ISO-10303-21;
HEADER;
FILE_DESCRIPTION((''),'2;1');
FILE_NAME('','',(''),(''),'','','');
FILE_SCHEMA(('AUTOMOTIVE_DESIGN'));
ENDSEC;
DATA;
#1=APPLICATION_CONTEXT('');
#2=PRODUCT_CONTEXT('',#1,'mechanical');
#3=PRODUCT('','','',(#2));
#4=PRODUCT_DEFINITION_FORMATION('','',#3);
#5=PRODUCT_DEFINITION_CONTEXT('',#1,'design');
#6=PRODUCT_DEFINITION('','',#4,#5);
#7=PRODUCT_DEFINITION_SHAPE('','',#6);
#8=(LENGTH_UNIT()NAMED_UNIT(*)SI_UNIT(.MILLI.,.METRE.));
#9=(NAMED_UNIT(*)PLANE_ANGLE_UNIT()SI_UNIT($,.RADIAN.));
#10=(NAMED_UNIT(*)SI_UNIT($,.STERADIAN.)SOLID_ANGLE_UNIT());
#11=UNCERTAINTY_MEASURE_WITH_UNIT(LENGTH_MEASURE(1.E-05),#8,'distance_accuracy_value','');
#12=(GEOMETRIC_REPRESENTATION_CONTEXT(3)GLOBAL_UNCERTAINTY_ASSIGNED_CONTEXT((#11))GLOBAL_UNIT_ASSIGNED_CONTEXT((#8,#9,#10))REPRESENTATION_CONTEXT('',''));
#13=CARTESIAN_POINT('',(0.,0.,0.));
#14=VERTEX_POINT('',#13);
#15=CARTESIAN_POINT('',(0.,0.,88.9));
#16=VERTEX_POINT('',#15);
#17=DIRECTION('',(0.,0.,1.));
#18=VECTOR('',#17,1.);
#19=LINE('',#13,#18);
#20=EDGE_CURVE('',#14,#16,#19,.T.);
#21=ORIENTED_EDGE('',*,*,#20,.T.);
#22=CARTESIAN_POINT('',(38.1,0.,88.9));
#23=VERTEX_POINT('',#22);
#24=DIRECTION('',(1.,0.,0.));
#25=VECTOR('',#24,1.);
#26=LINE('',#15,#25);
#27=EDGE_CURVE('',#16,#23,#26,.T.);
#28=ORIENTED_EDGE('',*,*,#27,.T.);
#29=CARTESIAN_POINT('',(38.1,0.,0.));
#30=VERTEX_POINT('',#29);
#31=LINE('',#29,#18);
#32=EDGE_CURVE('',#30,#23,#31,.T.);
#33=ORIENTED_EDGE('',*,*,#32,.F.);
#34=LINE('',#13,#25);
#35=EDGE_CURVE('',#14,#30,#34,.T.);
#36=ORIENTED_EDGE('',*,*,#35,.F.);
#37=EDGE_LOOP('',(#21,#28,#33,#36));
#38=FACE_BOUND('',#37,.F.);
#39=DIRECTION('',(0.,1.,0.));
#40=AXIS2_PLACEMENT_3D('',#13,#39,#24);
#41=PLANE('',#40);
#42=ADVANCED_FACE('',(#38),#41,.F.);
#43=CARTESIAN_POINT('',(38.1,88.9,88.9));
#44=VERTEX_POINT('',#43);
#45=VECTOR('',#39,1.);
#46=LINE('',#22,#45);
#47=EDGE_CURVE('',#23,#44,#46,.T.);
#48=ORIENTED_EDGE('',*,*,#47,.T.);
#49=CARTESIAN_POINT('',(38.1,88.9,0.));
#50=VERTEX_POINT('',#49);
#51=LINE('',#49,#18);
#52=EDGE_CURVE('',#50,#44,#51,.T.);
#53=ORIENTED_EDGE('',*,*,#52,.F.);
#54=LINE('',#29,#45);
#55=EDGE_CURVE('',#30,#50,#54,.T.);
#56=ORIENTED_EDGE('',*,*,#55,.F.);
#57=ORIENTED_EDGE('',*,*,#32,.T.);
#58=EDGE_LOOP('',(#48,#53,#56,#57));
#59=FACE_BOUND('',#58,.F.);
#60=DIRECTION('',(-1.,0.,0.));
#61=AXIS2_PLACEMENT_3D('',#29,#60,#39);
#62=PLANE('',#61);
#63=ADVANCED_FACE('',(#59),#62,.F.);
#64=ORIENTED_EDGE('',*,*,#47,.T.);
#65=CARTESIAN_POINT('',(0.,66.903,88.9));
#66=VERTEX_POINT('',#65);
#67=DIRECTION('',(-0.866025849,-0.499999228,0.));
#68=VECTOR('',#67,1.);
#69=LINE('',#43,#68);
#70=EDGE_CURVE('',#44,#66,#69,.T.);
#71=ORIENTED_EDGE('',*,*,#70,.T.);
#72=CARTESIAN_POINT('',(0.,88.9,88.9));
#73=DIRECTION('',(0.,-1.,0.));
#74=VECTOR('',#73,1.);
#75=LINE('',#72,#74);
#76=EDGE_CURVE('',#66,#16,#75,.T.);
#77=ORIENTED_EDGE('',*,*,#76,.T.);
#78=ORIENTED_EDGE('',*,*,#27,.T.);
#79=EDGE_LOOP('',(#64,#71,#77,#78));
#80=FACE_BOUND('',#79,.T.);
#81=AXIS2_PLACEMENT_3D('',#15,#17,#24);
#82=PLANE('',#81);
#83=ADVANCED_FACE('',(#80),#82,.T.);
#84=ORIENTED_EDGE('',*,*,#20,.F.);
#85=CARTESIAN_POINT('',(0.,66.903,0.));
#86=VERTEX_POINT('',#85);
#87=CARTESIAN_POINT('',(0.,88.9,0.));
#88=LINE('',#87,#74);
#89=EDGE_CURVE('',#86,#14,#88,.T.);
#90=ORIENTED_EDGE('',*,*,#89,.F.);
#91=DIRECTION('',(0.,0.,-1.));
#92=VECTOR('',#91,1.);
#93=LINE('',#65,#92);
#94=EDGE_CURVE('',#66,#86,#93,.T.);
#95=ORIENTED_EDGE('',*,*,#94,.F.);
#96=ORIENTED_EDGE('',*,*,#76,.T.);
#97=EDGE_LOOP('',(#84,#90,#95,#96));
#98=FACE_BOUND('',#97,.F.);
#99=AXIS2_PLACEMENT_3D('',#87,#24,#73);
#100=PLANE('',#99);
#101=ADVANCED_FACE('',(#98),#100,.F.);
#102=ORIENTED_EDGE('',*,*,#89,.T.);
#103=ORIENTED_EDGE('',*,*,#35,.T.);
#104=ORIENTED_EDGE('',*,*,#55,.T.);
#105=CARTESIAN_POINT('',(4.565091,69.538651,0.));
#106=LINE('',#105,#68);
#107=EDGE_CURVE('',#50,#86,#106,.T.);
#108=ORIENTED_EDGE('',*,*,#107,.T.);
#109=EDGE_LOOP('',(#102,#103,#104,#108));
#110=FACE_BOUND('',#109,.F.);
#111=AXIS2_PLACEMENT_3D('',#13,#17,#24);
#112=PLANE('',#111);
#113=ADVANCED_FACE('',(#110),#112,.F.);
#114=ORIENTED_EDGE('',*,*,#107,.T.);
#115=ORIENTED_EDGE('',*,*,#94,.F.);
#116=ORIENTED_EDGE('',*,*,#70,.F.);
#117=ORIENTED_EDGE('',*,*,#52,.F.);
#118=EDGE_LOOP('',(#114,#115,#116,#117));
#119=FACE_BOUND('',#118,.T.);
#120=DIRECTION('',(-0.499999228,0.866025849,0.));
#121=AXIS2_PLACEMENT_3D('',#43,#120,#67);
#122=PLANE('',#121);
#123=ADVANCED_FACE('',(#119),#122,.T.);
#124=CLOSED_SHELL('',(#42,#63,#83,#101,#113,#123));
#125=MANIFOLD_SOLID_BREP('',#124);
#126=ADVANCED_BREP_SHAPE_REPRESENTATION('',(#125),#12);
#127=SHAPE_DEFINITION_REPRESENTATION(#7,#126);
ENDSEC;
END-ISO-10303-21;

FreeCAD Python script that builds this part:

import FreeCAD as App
import Part
import Sketcher
Q = App.Units.Quantity


def add_polygon(sketch, points):
    """Adds a closed chain of lines whose ends are joined by coincident constraints."""
    first, n = sketch.GeometryCount, len(points)
    for a, b in zip(points, points[1:] + points[:1]):
        sketch.addGeometry(Part.LineSegment(App.Vector(*a, 0), App.Vector(*b, 0)), False)
    for i in range(n):
        sketch.addConstraint(Sketcher.Constraint("Coincident", first + i, 2, first + (i + 1) % n, 1))

doc = App.newDocument("Part")
body = doc.addObject("PartDesign::Body", "Body")

sketch1 = body.newObject("Sketcher::SketchObject", "Sketch")
sketch1.AttachmentSupport = (doc.getObject("XY_Plane"), [""])
sketch1.MapMode = "FlatFace"
add_polygon(sketch1, [(0, 88.9), (0, 0), (38.1, 0), (38.1, 88.9)])
sketch1.addConstraint(Sketcher.Constraint("Vertical", 0))
sketch1.addConstraint(Sketcher.Constraint("Horizontal", 1))
sketch1.addConstraint(Sketcher.Constraint("Vertical", 2))
sketch1.addConstraint(Sketcher.Constraint("Horizontal", 3))
sketch1.addConstraint(Sketcher.Constraint("Coincident", 0, 2, -1, 1))
sketch1.addConstraint(Sketcher.Constraint("DistanceX", 1, 1, 1, 2, Q("1.5 in")))
sketch1.addConstraint(Sketcher.Constraint("DistanceY", 0, 2, 0, 1, Q("3.5 in")))
pad1 = body.newObject("PartDesign::Pad", "Pad")
pad1.Profile = sketch1
pad1.Length = Q("3.5 in")

sketch2 = body.newObject("Sketcher::SketchObject", "Sketch001")
sketch2.AttachmentSupport = (doc.getObject("XY_Plane"), [""])
sketch2.MapMode = "FlatFace"
sketch2.AttachmentOffset = App.Placement(App.Vector(0, 0, 3.5 * 25.4), App.Rotation())
add_polygon(sketch2, [(0, 66.903), (38.1, 88.9), (0, 88.9)])
sketch2.addConstraint(Sketcher.Constraint("Horizontal", 1))
sketch2.addConstraint(Sketcher.Constraint("Vertical", 2))
sketch2.addConstraint(Sketcher.Constraint("PointOnObject", 1, 2, -2))
sketch2.addConstraint(Sketcher.Constraint("Angle", 0, Q("30 deg")))
sketch2.addConstraint(Sketcher.Constraint("DistanceX", 1, 2, 1, 1, Q("1.5 in")))
sketch2.addConstraint(Sketcher.Constraint("DistanceY", -1, 1, 0, 2, Q("3.5 in")))
pocket1 = body.newObject("PartDesign::Pocket", "Pocket")
pocket1.Profile = sketch2
pocket1.Type = "ThroughAll"

doc.recompute()
